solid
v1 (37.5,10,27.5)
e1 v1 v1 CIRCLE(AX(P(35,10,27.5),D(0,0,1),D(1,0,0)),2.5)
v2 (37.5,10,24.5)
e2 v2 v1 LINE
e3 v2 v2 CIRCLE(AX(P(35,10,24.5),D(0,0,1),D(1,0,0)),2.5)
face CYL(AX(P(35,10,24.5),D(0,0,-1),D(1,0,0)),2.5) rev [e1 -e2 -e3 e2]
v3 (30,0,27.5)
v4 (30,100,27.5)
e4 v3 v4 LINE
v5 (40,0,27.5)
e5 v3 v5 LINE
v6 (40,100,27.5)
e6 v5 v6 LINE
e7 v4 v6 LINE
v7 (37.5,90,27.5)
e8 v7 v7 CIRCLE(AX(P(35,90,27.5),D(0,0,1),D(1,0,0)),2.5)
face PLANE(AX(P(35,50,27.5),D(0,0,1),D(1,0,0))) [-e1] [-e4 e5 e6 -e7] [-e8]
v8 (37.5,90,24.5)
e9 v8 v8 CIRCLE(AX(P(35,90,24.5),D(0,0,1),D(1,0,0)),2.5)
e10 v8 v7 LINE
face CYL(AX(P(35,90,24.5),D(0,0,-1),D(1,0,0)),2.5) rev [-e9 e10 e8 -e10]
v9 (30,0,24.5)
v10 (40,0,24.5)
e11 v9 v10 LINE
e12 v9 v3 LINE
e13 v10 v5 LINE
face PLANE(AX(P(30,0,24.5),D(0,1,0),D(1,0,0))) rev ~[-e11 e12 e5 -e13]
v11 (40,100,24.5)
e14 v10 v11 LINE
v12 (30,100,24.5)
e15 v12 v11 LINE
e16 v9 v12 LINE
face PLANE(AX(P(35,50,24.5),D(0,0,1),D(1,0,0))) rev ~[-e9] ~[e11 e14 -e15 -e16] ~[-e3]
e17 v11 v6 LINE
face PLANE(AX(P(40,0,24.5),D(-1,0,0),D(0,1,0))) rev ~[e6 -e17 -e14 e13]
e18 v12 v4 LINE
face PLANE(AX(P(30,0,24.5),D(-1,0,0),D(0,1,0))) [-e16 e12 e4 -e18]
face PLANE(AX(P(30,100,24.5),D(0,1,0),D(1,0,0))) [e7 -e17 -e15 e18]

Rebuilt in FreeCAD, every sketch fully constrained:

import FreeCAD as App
import Part
import Sketcher

V = App.Vector
Q = App.Units.Quantity


def add_polygon(sketch, points):
    """Adds a closed chain of lines whose ends are joined by coincident constraints."""
    first, n = sketch.GeometryCount, len(points)
    for a, b in zip(points, points[1:] + points[:1]):
        sketch.addGeometry(Part.LineSegment(App.Vector(*a, 0), App.Vector(*b, 0)), False)
    for i in range(n):
        sketch.addConstraint(Sketcher.Constraint("Coincident", first + i, 2, first + (i + 1) % n, 1))

doc = App.newDocument("Part")
body = doc.addObject("PartDesign::Body", "Body")

sketch1 = body.newObject("Sketcher::SketchObject", "Sketch")
sketch1.AttachmentSupport = (doc.getObject("XY_Plane"), [""])
sketch1.MapMode = "FlatFace"
sketch1.AttachmentOffset = App.Placement(V(0, 0, 24.5), App.Rotation())
sketch1.addGeometry(Part.Circle(V(35, 90, 0), V(0, 0, 1), 2.5), False)
sketch1.addConstraint(Sketcher.Constraint("Diameter", 0, Q("5 mm")))
sketch1.addConstraint(Sketcher.Constraint("DistanceX", -1, 1, 0, 3, Q("35 mm")))
sketch1.addConstraint(Sketcher.Constraint("DistanceY", -1, 1, 0, 3, Q("90 mm")))
pad1 = body.newObject("PartDesign::Pad", "Pad")
pad1.Profile = sketch1
pad1.Length = 3
body2 = doc.addObject("PartDesign::Body", "Body001")

sketch2 = body2.newObject("Sketcher::SketchObject", "Sketch001")
sketch2.AttachmentSupport = (doc.getObject("XY_Plane001"), [""])
sketch2.MapMode = "FlatFace"
sketch2.AttachmentOffset = App.Placement(V(0, 0, 24.5), App.Rotation())
sketch2.addGeometry(Part.Circle(V(35, 10, 0), V(0, 0, 1), 2.5), False)
sketch2.addConstraint(Sketcher.Constraint("Diameter", 0, Q("5 mm")))
sketch2.addConstraint(Sketcher.Constraint("DistanceX", -1, 1, 0, 3, Q("35 mm")))
sketch2.addConstraint(Sketcher.Constraint("DistanceY", -1, 1, 0, 3, Q("10 mm")))
pad2 = body2.newObject("PartDesign::Pad", "Pad001")
pad2.Profile = sketch2
pad2.Length = 3
body3 = doc.addObject("PartDesign::Body", "Body002")

sketch3 = body3.newObject("Sketcher::SketchObject", "Sketch002")
sketch3.AttachmentSupport = (doc.getObject("XY_Plane002"), [""])
sketch3.MapMode = "FlatFace"
sketch3.AttachmentOffset = App.Placement(V(0, 0, 24.5), App.Rotation())
add_polygon(sketch3, [(30, 100), (30, 0), (40, 0), (40, 100)])
sketch3.addConstraint(Sketcher.Constraint("Vertical", 0))
sketch3.addConstraint(Sketcher.Constraint("Horizontal", 1))
sketch3.addConstraint(Sketcher.Constraint("Vertical", 2))
sketch3.addConstraint(Sketcher.Constraint("Horizontal", 3))
sketch3.addConstraint(Sketcher.Constraint("PointOnObject", 0, 2, -1))
sketch3.addConstraint(Sketcher.Constraint("DistanceX", 1, 1, 1, 2, Q("10 mm")))
sketch3.addConstraint(Sketcher.Constraint("DistanceY", 0, 2, 0, 1, Q("100 mm")))
sketch3.addConstraint(Sketcher.Constraint("DistanceX", -1, 1, 0, 2, Q("30 mm")))
pad3 = body3.newObject("PartDesign::Pad", "Pad002")
pad3.Profile = sketch3
pad3.Length = 3
doc.recompute()

boolean = body3.newObject("PartDesign::Boolean", "Boolean")
boolean.Type = "Cut"
boolean.addObjects([body2])
doc.recompute()

boolean2 = body3.newObject("PartDesign::Boolean", "Boolean001")
boolean2.Type = "Cut"
boolean2.addObjects([body])

doc.recompute()
